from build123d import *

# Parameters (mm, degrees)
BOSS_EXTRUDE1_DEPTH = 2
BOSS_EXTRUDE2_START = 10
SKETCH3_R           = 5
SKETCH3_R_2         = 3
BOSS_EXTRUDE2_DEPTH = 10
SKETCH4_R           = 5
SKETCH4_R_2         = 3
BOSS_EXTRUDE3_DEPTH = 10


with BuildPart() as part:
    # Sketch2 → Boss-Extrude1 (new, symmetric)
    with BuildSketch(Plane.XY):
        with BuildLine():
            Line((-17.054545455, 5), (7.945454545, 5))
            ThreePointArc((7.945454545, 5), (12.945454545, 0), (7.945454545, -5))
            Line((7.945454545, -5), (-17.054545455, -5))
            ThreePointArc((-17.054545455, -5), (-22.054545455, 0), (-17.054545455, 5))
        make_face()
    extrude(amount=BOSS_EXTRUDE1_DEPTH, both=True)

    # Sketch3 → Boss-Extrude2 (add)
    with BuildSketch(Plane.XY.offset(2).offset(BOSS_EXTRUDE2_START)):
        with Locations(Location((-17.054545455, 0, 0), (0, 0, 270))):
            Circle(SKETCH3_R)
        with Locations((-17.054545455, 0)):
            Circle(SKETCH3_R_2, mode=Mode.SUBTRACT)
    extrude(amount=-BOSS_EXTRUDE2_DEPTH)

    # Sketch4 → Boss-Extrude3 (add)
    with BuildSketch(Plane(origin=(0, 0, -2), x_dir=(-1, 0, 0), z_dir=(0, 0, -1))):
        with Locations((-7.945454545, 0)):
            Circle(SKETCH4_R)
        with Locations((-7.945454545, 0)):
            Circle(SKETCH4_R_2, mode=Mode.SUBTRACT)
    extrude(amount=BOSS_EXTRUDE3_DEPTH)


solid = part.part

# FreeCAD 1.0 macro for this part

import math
import FreeCAD as App
import Part
import Sketcher
from FreeCAD import Vector
Q = App.Units.Quantity

doc = App.newDocument("Part")
params = doc.addObject("Spreadsheet::Sheet", "Params")
for row, (alias, value) in enumerate([
    ("sketch1_radius", "5 mm"),
    ("sketch1_width", "25 mm"),
    ("pad1_length", "4 mm"),
    ("sketch2_diameter", "10 mm"),
    ("sketch2_diameter2", "6 mm"),
    ("pad2_length", "10 mm"),
    ("sketch3_diameter", "10 mm"),
    ("sketch3_diameter2", "6 mm"),
    ("pad3_length", "10 mm"),
], start=1):
    params.set(f"A{row}", alias)
    params.set(f"B{row}", "=" + value)
    params.setAlias(f"B{row}", alias)

body = doc.addObject("PartDesign::Body", "Body")

# Sketch on XY plane
sketch1 = body.newObject("Sketcher::SketchObject", "Sketch")
sketch1.AttachmentSupport = (doc.getObject("XY_Plane"), [""])
sketch1.MapMode = "FlatFace"
sketch1.addGeometry(Part.LineSegment(Vector(7.945455, 5, 0), Vector(-17.054545, 5, 0)), False)
sketch1.addGeometry(Part.ArcOfCircle(Part.Circle(Vector(-17.054545, 0, 0), Vector(0, 0, 1), 5), math.radians(90), math.radians(270)), False)
sketch1.addGeometry(Part.LineSegment(Vector(-17.054545, -5, 0), Vector(7.945455, -5, 0)), False)
sketch1.addGeometry(Part.ArcOfCircle(Part.Circle(Vector(7.945455, 0, 0), Vector(0, 0, 1), 5), math.radians(-90), math.radians(90)), False)
sketch1.addConstraint(Sketcher.Constraint("Tangent", 0, 2, 1, 1))
sketch1.addConstraint(Sketcher.Constraint("Tangent", 1, 2, 2, 1))
sketch1.addConstraint(Sketcher.Constraint("Tangent", 2, 2, 3, 1))
sketch1.addConstraint(Sketcher.Constraint("Tangent", 3, 2, 0, 1))
sketch1.addConstraint(Sketcher.Constraint("Horizontal", 0))
sketch1.addConstraint(Sketcher.Constraint("Horizontal", 2))
sketch1.addConstraint(Sketcher.Constraint("PointOnObject", 1, 3, -1))
sketch1.addConstraint(Sketcher.Constraint("Radius", 1, Q("5 mm")))
sketch1.addConstraint(Sketcher.Constraint("DistanceX", 0, 2, 0, 1, Q("25 mm")))
sketch1.addConstraint(Sketcher.Constraint("DistanceX", 1, 3, -1, 1, Q("17.054545 mm")))
sketch1.setExpression("Constraints[7]", "Params.sketch1_radius")
sketch1.setExpression("Constraints[8]", "Params.sketch1_width")
pad1 = body.newObject("PartDesign::Pad", "Pad")
pad1.Profile = sketch1
pad1.setExpression("Length", "Params.pad1_length")
pad1.Midplane = True

# Sketch on XY plane
sketch2 = body.newObject("Sketcher::SketchObject", "Sketch001")
sketch2.AttachmentSupport = (doc.getObject("XY_Plane"), [""])
sketch2.MapMode = "FlatFace"
sketch2.AttachmentOffset = App.Placement(Vector(0, 0, 12), App.Rotation())
sketch2.addGeometry(Part.Circle(Vector(-17.054545, 0, 0), Vector(0, 0, 1), 5), False)
sketch2.addGeometry(Part.Circle(Vector(-17.054545, 0, 0), Vector(0, 0, 1), 3), False)
sketch2.addConstraint(Sketcher.Constraint("Coincident", 1, 3, 0, 3))
sketch2.addConstraint(Sketcher.Constraint("PointOnObject", 0, 3, -1))
sketch2.addConstraint(Sketcher.Constraint("Diameter", 0, Q("10 mm")))
sketch2.addConstraint(Sketcher.Constraint("Diameter", 1, Q("6 mm")))
sketch2.addConstraint(Sketcher.Constraint("DistanceX", 0, 3, -1, 1, Q("17.054545 mm")))
sketch2.setExpression("Constraints[2]", "Params.sketch2_diameter")
sketch2.setExpression("Constraints[3]", "Params.sketch2_diameter2")
pad2 = body.newObject("PartDesign::Pad", "Pad001")
pad2.Profile = sketch2
pad2.setExpression("Length", "Params.pad2_length")
pad2.Reversed = True

# Sketch on XY plane
sketch3 = body.newObject("Sketcher::SketchObject", "Sketch002")
sketch3.AttachmentSupport = (doc.getObject("XY_Plane"), [""])
sketch3.MapMode = "FlatFace"
sketch3.AttachmentOffset = App.Placement(Vector(0, 0, -2), App.Rotation())
sketch3.addGeometry(Part.Circle(Vector(7.945455, 0, 0), Vector(0, 0, 1), 5), False)
sketch3.addGeometry(Part.Circle(Vector(7.945455, 0, 0), Vector(0, 0, 1), 3), False)
sketch3.addConstraint(Sketcher.Constraint("Coincident", 1, 3, 0, 3))
sketch3.addConstraint(Sketcher.Constraint("PointOnObject", 0, 3, -1))
sketch3.addConstraint(Sketcher.Constraint("Diameter", 0, Q("10 mm")))
sketch3.addConstraint(Sketcher.Constraint("Diameter", 1, Q("6 mm")))
sketch3.addConstraint(Sketcher.Constraint("DistanceX", -1, 1, 0, 3, Q("7.945455 mm")))
sketch3.setExpression("Constraints[2]", "Params.sketch3_diameter")
sketch3.setExpression("Constraints[3]", "Params.sketch3_diameter2")
pad3 = body.newObject("PartDesign::Pad", "Pad002")
pad3.Profile = sketch3
pad3.setExpression("Length", "Params.pad3_length")
pad3.Reversed = True

doc.recompute()
